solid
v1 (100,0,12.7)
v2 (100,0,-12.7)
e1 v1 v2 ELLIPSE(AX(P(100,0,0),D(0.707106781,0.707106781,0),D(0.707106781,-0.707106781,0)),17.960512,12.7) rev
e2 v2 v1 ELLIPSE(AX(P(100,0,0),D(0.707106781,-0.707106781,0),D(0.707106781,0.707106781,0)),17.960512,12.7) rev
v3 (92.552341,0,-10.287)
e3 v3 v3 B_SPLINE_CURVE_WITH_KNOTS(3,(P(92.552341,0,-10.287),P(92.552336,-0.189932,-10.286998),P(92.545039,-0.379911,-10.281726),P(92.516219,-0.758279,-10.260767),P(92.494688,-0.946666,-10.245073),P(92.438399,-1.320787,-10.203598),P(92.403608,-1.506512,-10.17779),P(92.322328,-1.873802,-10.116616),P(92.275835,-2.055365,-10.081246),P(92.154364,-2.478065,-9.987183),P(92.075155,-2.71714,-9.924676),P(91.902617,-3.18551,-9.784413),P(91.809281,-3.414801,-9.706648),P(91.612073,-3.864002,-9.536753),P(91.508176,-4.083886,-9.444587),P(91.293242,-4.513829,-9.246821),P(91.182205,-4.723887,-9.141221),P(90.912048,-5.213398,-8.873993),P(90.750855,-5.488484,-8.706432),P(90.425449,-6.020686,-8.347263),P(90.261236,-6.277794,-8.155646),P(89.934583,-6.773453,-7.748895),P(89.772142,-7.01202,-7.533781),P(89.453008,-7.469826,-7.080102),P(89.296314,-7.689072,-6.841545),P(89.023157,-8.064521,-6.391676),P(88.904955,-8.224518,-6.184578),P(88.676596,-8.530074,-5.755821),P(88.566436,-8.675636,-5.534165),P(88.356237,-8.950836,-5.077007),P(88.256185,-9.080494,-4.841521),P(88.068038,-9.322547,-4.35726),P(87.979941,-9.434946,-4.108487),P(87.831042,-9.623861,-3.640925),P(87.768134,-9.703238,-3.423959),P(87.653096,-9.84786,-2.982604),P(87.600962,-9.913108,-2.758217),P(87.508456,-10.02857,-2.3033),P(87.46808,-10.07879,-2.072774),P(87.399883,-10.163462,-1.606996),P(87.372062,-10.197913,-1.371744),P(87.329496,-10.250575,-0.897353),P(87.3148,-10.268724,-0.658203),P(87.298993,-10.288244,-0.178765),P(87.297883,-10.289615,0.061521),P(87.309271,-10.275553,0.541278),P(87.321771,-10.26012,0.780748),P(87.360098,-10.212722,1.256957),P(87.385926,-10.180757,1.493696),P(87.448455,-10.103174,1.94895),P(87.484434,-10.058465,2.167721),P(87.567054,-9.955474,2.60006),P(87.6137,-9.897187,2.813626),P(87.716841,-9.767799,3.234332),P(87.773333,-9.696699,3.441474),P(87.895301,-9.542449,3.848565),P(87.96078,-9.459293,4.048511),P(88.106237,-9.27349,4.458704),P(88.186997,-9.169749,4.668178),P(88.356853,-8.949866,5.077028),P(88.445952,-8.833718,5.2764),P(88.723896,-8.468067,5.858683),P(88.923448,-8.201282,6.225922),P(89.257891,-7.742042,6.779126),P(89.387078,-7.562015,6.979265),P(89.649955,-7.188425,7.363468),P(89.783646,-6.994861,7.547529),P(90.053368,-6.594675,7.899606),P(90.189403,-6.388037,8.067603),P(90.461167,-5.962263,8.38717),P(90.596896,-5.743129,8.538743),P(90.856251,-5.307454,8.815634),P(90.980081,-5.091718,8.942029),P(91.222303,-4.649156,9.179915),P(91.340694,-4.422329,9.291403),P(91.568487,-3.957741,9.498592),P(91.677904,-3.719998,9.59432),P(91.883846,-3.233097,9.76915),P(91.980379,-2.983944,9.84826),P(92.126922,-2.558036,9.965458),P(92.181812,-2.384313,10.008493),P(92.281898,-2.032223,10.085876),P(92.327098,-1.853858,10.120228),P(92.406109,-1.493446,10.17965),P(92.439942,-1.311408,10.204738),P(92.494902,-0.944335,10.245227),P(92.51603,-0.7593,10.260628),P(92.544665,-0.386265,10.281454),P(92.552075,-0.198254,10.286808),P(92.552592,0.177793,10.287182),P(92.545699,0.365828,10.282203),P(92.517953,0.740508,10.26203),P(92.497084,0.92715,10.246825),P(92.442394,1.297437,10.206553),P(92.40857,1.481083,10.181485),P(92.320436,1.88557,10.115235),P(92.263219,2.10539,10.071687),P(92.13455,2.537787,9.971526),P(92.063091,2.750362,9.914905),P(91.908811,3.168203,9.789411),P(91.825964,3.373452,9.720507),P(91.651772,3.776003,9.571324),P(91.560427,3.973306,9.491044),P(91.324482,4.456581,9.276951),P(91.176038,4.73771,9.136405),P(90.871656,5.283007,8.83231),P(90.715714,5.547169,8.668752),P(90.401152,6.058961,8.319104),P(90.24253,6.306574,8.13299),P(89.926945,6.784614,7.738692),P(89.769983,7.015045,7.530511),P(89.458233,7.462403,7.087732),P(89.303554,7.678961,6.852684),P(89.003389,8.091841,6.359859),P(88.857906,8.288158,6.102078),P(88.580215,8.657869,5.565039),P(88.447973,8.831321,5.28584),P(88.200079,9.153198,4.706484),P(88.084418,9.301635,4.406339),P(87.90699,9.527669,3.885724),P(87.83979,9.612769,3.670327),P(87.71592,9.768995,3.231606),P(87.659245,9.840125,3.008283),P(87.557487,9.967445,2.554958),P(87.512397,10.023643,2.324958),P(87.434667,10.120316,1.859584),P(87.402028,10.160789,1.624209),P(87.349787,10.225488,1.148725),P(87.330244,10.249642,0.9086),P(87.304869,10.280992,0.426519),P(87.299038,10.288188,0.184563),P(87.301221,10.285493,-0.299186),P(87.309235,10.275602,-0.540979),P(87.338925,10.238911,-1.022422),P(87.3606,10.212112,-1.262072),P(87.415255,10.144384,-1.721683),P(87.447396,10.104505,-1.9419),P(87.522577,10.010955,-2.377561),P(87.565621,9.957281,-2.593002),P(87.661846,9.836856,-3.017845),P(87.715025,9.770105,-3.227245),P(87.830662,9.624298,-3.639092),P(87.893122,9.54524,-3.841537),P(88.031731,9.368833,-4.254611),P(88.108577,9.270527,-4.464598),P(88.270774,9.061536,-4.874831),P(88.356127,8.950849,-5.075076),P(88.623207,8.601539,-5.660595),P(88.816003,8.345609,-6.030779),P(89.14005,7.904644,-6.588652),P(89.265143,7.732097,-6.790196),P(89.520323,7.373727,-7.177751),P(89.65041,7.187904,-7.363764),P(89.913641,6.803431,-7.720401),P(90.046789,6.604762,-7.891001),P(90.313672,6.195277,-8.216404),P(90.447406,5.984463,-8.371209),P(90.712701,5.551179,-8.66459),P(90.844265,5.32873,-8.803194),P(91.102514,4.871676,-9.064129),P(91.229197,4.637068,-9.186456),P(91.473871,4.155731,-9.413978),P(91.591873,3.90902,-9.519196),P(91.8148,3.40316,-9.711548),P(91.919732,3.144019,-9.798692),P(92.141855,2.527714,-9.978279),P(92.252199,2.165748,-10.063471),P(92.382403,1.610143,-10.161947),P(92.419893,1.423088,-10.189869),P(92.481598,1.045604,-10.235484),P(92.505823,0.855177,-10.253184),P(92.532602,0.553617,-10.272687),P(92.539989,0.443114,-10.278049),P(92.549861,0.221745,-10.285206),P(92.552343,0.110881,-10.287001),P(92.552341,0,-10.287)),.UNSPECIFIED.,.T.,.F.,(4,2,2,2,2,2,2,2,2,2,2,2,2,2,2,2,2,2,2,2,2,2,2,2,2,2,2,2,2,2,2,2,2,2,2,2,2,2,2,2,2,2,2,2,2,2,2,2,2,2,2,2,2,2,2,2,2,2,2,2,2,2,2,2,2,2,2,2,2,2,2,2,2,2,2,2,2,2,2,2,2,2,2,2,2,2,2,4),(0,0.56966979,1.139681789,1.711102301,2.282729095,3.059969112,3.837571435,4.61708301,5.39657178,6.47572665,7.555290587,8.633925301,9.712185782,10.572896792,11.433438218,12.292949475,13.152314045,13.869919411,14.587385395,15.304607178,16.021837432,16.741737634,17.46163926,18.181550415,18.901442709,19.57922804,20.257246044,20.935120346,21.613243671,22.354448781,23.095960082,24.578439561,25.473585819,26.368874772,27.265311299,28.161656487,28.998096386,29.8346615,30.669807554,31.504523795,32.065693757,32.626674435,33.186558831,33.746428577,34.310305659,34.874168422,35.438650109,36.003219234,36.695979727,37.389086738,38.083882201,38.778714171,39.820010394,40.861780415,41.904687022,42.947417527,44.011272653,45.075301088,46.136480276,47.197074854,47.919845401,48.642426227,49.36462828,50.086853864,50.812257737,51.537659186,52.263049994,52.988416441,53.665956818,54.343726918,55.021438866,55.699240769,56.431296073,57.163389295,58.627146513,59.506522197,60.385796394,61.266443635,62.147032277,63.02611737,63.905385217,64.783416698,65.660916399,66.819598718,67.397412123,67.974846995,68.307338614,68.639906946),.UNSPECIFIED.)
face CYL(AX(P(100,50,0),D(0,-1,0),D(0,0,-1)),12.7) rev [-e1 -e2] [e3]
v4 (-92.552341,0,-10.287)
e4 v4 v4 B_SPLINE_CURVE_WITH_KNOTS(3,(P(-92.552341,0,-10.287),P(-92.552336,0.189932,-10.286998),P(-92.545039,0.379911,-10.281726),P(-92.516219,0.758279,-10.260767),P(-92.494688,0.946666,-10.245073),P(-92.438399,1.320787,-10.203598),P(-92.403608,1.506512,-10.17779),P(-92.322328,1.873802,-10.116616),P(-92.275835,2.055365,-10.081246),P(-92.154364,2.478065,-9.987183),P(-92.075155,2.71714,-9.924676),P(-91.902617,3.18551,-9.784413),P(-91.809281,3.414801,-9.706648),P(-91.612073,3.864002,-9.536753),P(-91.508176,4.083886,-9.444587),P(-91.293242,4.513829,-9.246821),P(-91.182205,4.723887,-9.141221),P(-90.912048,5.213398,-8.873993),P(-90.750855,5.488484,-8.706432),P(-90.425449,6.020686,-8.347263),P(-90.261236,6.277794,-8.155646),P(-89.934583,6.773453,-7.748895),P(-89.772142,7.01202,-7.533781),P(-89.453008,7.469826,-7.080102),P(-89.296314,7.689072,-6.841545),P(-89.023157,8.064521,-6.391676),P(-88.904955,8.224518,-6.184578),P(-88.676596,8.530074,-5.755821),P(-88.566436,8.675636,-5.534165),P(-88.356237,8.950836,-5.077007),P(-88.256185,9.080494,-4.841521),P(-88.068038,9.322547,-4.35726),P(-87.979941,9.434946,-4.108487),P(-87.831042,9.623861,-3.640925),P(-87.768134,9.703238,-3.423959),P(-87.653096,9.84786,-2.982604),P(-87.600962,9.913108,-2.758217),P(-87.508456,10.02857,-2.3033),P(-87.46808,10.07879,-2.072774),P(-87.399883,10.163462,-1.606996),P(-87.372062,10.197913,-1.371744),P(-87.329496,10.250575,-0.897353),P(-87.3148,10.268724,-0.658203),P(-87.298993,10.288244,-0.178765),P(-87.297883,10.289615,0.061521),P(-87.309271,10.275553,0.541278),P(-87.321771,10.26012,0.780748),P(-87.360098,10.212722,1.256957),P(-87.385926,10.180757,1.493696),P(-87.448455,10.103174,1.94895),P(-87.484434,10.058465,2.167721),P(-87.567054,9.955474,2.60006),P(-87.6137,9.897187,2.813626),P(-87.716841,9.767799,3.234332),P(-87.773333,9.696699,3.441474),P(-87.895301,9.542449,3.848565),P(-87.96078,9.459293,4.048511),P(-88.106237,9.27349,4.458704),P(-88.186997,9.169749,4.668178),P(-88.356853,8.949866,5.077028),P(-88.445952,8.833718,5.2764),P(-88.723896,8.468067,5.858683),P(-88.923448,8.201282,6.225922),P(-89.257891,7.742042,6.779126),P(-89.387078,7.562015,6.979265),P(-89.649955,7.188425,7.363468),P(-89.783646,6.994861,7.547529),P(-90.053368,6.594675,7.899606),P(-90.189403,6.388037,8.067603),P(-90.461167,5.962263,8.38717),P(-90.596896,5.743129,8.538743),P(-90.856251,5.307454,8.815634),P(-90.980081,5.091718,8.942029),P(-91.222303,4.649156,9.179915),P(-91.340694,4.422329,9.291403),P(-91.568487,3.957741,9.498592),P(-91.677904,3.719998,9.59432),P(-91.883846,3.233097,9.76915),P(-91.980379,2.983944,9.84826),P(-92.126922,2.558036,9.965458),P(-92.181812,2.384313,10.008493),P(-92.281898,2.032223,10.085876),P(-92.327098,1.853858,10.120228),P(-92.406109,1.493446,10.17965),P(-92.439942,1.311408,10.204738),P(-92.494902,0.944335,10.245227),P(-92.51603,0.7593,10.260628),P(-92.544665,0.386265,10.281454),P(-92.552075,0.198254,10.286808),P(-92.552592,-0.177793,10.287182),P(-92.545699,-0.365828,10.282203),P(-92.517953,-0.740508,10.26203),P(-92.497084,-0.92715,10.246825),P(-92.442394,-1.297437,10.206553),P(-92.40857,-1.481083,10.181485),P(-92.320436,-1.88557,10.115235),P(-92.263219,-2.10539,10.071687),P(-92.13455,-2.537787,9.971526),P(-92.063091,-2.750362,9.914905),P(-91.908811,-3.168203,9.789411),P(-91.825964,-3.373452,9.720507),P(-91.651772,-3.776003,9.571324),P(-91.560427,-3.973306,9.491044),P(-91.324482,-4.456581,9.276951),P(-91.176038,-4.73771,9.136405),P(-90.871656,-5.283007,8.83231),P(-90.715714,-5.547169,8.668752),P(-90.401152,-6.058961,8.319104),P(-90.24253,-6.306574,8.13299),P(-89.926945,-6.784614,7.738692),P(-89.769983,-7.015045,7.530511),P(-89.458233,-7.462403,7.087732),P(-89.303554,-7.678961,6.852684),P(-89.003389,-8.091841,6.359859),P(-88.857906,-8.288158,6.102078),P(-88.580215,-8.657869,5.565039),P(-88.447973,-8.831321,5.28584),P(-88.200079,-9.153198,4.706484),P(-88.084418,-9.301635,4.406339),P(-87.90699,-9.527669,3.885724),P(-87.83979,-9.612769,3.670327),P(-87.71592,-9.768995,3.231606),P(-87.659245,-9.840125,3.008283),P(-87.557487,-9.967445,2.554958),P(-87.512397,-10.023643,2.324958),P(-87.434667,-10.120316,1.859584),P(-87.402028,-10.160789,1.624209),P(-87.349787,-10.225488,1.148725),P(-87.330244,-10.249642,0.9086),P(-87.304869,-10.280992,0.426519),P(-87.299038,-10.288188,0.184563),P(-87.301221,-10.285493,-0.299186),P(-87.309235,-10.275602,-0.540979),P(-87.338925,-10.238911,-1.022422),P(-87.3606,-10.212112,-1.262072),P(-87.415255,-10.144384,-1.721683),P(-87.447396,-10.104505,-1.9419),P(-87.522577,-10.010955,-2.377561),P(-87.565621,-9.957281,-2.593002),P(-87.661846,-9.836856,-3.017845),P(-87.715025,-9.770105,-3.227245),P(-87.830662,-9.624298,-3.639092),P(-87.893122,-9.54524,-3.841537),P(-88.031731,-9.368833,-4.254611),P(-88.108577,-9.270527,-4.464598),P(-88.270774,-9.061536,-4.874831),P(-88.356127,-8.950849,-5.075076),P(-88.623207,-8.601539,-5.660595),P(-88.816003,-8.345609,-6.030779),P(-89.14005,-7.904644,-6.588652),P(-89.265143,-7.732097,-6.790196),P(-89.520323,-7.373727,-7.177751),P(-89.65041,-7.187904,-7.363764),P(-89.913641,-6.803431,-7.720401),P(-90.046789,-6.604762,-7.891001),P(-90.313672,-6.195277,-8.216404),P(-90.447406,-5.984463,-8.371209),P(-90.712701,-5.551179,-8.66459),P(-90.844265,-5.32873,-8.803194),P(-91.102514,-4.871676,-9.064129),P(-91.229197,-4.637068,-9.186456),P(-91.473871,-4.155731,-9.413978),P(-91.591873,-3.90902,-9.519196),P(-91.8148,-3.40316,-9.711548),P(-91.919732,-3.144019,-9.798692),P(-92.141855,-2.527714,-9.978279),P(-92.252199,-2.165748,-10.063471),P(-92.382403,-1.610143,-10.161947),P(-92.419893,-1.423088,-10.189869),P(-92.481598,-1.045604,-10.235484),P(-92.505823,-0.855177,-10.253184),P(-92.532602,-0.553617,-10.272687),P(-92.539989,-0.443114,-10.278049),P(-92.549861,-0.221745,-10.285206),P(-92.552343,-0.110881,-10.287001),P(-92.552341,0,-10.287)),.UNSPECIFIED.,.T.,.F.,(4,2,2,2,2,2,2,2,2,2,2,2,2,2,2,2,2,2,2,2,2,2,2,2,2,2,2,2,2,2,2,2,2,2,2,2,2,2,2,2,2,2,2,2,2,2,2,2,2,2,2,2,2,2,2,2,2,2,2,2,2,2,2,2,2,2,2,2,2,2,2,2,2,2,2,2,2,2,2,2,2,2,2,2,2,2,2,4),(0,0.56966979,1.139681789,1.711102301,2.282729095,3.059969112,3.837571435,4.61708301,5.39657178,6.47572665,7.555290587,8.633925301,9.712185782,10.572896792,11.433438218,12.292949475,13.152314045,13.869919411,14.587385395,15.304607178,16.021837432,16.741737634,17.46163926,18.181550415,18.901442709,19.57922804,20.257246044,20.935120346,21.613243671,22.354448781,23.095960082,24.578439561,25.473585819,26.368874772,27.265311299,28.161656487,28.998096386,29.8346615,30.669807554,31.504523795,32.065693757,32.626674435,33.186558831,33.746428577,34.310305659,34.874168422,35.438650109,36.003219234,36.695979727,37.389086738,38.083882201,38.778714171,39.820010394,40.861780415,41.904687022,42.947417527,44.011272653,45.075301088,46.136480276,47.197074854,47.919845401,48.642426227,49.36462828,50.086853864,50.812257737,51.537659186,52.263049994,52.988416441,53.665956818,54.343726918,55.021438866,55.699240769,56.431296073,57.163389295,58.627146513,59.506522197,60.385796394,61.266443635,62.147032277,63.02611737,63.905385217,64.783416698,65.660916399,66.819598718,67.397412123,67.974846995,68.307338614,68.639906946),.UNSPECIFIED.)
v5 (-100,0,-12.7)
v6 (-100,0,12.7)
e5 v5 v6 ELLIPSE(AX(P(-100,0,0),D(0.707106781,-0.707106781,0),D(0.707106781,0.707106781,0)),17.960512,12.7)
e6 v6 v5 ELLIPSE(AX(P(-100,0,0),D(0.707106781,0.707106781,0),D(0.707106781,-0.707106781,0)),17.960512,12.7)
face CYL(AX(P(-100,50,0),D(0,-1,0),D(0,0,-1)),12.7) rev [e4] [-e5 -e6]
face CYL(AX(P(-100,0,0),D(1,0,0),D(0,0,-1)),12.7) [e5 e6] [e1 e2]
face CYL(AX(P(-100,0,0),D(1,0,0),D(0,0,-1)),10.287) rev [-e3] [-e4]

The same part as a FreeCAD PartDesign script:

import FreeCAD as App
import Part
import Sketcher
Q = App.Units.Quantity

doc = App.newDocument("Part")
params = doc.addObject("Spreadsheet::Sheet", "Params")
for row, (alias, value) in enumerate([
    ("sketch1_diameter", "25.4 mm"),
    ("pad1_length", "100 mm"),
    ("pad1_length2", "100 mm"),
    ("sketch2_diameter", "25.4 mm"),
], start=1):
    params.set(f"A{row}", alias)
    params.set(f"B{row}", "=" + value)
    params.setAlias(f"B{row}", alias)

body = doc.addObject("PartDesign::Body", "Body")

# Sketch on YZ plane
sketch1 = doc.addObject("Sketcher::SketchObject", "Sketch")
body.addObject(sketch1)
sketch1.AttachmentSupport = (doc.YZ_Plane, [""])
sketch1.MapMode = "FlatFace"
sketch1.addGeometry([
    Part.Circle(App.Vector(0, 0, 0), App.Vector(0, 0, 1), 13),
    Part.Circle(App.Vector(0, 0, 0), App.Vector(0, 0, 1), 10),
], False)
sketch1.addConstraint([
    Sketcher.Constraint("Coincident", 0, 3, -1, 1),
    Sketcher.Constraint("Coincident", 1, 3, -1, 1),
    Sketcher.Constraint("Diameter", 0, Q("25.4 mm")),
    Sketcher.Constraint("Diameter", 1, Q("20.574 mm")),
])
sketch1.setExpression("Constraints[2]", "Params.sketch1_diameter")
pad1 = doc.addObject("PartDesign::Pad", "Pad")
body.addObject(pad1)
pad1.Profile = sketch1
pad1.Type = "TwoLengths"
pad1.setExpression("Length", "Params.pad1_length")
pad1.setExpression("Length2", "Params.pad1_length2")

# Sketch on XZ plane
sketch2 = doc.addObject("Sketcher::SketchObject", "Sketch001")
body.addObject(sketch2)
sketch2.AttachmentSupport = (doc.XZ_Plane, [""])
sketch2.MapMode = "FlatFace"
sketch2.addGeometry([
    Part.Circle(App.Vector(-100, 0, 0), App.Vector(0, 0, 1), 13),
    Part.Circle(App.Vector(100, 0, 0), App.Vector(0, 0, 1), 13),
], False)
sketch2.addConstraint([
    Sketcher.Constraint("Equal", 0, 1),
    Sketcher.Constraint("Symmetric", 0, 3, 1, 3, -1, 1),
    Sketcher.Constraint("PointOnObject", 0, 3, -1),
    Sketcher.Constraint("Diameter", 0, Q("25.4 mm")),
    Sketcher.Constraint("DistanceX", 0, 3, -1, 1, Q("100 mm")),
])
sketch2.setExpression("Constraints[3]", "Params.sketch2_diameter")
pocket1 = doc.addObject("PartDesign::Pocket", "Pocket")
body.addObject(pocket1)
pocket1.Profile = sketch2
pocket1.Type = "ThroughAll"
pocket1.Midplane = True

doc.recompute()
